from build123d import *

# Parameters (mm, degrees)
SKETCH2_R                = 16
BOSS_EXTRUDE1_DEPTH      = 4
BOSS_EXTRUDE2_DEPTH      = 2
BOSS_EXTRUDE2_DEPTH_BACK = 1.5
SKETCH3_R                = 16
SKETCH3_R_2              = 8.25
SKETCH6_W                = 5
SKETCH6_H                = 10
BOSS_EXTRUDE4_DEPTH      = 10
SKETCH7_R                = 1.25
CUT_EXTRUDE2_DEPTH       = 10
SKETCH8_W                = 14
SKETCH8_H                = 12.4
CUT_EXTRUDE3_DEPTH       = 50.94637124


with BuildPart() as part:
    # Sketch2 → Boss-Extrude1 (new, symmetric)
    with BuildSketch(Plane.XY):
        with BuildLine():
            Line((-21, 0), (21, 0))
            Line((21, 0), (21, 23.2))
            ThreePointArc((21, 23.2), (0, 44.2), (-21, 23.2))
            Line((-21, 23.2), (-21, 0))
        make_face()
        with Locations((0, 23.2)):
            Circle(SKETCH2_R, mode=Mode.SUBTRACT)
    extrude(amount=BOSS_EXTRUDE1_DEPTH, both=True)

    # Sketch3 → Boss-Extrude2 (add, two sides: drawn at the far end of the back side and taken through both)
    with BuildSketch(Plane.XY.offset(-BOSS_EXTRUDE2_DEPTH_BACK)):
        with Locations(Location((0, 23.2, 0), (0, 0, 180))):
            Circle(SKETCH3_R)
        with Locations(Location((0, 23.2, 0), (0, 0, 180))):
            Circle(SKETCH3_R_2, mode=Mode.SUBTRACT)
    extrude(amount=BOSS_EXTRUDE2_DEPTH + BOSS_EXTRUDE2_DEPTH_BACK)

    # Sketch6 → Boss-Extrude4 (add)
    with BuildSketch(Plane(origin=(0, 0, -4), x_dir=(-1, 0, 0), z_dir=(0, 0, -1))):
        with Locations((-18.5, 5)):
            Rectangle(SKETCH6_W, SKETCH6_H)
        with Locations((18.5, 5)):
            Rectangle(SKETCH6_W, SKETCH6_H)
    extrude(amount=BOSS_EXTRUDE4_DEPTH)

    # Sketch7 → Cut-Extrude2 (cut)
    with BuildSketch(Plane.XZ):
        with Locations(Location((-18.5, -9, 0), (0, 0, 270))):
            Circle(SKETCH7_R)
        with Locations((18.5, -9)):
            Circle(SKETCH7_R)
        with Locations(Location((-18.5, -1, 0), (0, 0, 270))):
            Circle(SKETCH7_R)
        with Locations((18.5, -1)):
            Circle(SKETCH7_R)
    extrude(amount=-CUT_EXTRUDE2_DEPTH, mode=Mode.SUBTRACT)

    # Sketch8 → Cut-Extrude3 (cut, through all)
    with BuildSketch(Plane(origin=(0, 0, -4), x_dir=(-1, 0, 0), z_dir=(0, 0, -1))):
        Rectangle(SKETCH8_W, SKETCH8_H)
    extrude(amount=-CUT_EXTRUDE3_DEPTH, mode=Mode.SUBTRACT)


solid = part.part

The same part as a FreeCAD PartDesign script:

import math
import FreeCAD as App
import Part
import Sketcher
Q = App.Units.Quantity


def add_polygon(sketch, points):
    """Adds a closed chain of lines whose ends are joined by coincident constraints."""
    first, n = sketch.GeometryCount, len(points)
    for a, b in zip(points, points[1:] + points[:1]):
        sketch.addGeometry(Part.LineSegment(App.Vector(*a, 0), App.Vector(*b, 0)), False)
    for i in range(n):
        sketch.addConstraint(Sketcher.Constraint("Coincident", first + i, 2, first + (i + 1) % n, 1))

doc = App.newDocument("Part")
body = doc.addObject("PartDesign::Body", "Body")

# Sketch on XY plane
sketch1 = body.newObject("Sketcher::SketchObject", "Sketch")
sketch1.AttachmentSupport = (doc.getObject("XY_Plane"), [""])
sketch1.MapMode = "FlatFace"
sketch1.addGeometry([
    Part.LineSegment(App.Vector(-21, 0, 0), App.Vector(21, 0, 0)),  # 0
    Part.LineSegment(App.Vector(21, 0, 0), App.Vector(21, 23, 0)),  # 1
    Part.ArcOfCircle(Part.Circle(App.Vector(0, 23, 0), App.Vector(0, 0, 1), 21), math.radians(0), math.radians(180)),  # 2
    Part.LineSegment(App.Vector(-21, 23, 0), App.Vector(-21, 0, 0)),  # 3
    Part.Circle(App.Vector(0, 23, 0), App.Vector(0, 0, 1), 16),  # 4
], False)
sketch1.addConstraint([
    Sketcher.Constraint("Coincident", 0, 2, 1, 1),
    Sketcher.Constraint("Tangent", 1, 2, 2, 1),
    Sketcher.Constraint("Tangent", 2, 2, 3, 1),
    Sketcher.Constraint("Coincident", 3, 2, 0, 1),
    Sketcher.Constraint("Horizontal", 0),
    Sketcher.Constraint("Vertical", 1),
    Sketcher.Constraint("Vertical", 3),
    Sketcher.Constraint("Coincident", 4, 3, 2, 3),
    Sketcher.Constraint("Symmetric", 0, 2, 3, 2, -1, 1),
    Sketcher.Constraint("Diameter", 4, Q("32 mm")),
    Sketcher.Constraint("Radius", 2, Q("21 mm")),
    Sketcher.Constraint("DistanceY", 1, 1, 1, 2, Q("23.2 mm")),
])
pad1 = body.newObject("PartDesign::Pad", "Pad")
pad1.Profile = sketch1
pad1.Length = 8
pad1.Midplane = True

# Sketch on XY plane
sketch2 = body.newObject("Sketcher::SketchObject", "Sketch001")
sketch2.AttachmentSupport = (doc.getObject("XY_Plane"), [""])
sketch2.MapMode = "FlatFace"
sketch2.addGeometry([
    Part.Circle(App.Vector(0, 23, 0), App.Vector(0, 0, 1), 16),
    Part.Circle(App.Vector(0, 23, 0), App.Vector(0, 0, 1), 8),
], False)
sketch2.addConstraint([
    Sketcher.Constraint("Coincident", 1, 3, 0, 3),
    Sketcher.Constraint("PointOnObject", 0, 3, -2),
    Sketcher.Constraint("Diameter", 0, Q("32 mm")),
    Sketcher.Constraint("Diameter", 1, Q("16.5 mm")),
    Sketcher.Constraint("DistanceY", -1, 1, 0, 3, Q("23.2 mm")),
])
pad2 = body.newObject("PartDesign::Pad", "Pad001")
pad2.Profile = sketch2
pad2.Type = "TwoLengths"
pad2.Length = 2
pad2.Length2 = 1.5

# Sketch on XY plane
sketch3 = body.newObject("Sketcher::SketchObject", "Sketch002")
sketch3.AttachmentSupport = (doc.getObject("XY_Plane"), [""])
sketch3.MapMode = "FlatFace"
sketch3.AttachmentOffset = App.Placement(App.Vector(0, 0, -4), App.Rotation())
add_polygon(sketch3, [(21, 10), (21, 0), (16, 0), (16, 10)])  # lines 0-3
add_polygon(sketch3, [(-16, 10), (-16, 0), (-21, 0), (-21, 10)])  # lines 4-7
sketch3.addConstraint([
    Sketcher.Constraint("Vertical", 0),
    Sketcher.Constraint("Horizontal", 1),
    Sketcher.Constraint("Vertical", 2),
    Sketcher.Constraint("Horizontal", 3),
    Sketcher.Constraint("Vertical", 4),
    Sketcher.Constraint("Horizontal", 5),
    Sketcher.Constraint("Vertical", 6),
    Sketcher.Constraint("Horizontal", 7),
    Sketcher.Constraint("Symmetric", 1, 2, 4, 2, -1, 1),
    Sketcher.Constraint("Symmetric", 0, 2, 5, 2, -2),
    Sketcher.Constraint("Horizontal", 3, 2, 6, 2),
    Sketcher.Constraint("DistanceX", 1, 2, 1, 1, Q("5 mm")),
    Sketcher.Constraint("DistanceY", 0, 2, 0, 1, Q("10 mm")),
    Sketcher.Constraint("DistanceX", -1, 1, 0, 2, Q("21 mm")),
])
pad3 = body.newObject("PartDesign::Pad", "Pad002")
pad3.Profile = sketch3
pad3.Length = 10
pad3.Reversed = True

# Sketch on XZ plane
sketch4 = body.newObject("Sketcher::SketchObject", "Sketch003")
sketch4.AttachmentSupport = (doc.getObject("XZ_Plane"), [""])
sketch4.MapMode = "FlatFace"
sketch4.addGeometry([
    Part.Circle(App.Vector(-18.5, -9, 0), App.Vector(0, 0, 1), 1.2),
    Part.Circle(App.Vector(18.5, -9, 0), App.Vector(0, 0, 1), 1.2),
    Part.Circle(App.Vector(-18.5, -1, 0), App.Vector(0, 0, 1), 1.2),
    Part.Circle(App.Vector(18.5, -1, 0), App.Vector(0, 0, 1), 1.2),
], False)
sketch4.addConstraint([
    Sketcher.Constraint("Equal", 0, 1),
    Sketcher.Constraint("Equal", 1, 2),
    Sketcher.Constraint("Equal", 2, 3),
    Sketcher.Constraint("Symmetric", 0, 3, 1, 3, -2),
    Sketcher.Constraint("Symmetric", 2, 3, 3, 3, -2),
    Sketcher.Constraint("Vertical", 0, 3, 2, 3),
    Sketcher.Constraint("Diameter", 0, Q("2.5 mm")),
    Sketcher.Constraint("DistanceY", 0, 3, -1, 1, Q("9 mm")),
    Sketcher.Constraint("DistanceY", 2, 3, -1, 1, Q("1 mm")),
    Sketcher.Constraint("DistanceX", 0, 3, 1, 3, Q("37 mm")),
])
pocket1 = body.newObject("PartDesign::Pocket", "Pocket")
pocket1.Profile = sketch4
pocket1.Length = 10

# Sketch on XY plane
sketch5 = body.newObject("Sketcher::SketchObject", "Sketch004")
sketch5.AttachmentSupport = (doc.getObject("XY_Plane"), [""])
sketch5.MapMode = "FlatFace"
sketch5.AttachmentOffset = App.Placement(App.Vector(0, 0, -4), App.Rotation())
add_polygon(sketch5, [(7, 6), (7, -6), (-7, -6), (-7, 6)])  # lines 0-3
sketch5.addConstraint([
    Sketcher.Constraint("Vertical", 0),
    Sketcher.Constraint("Horizontal", 1),
    Sketcher.Constraint("Vertical", 2),
    Sketcher.Constraint("Horizontal", 3),
    Sketcher.Constraint("Symmetric", 0, 2, 2, 2, -1, 1),
    Sketcher.Constraint("DistanceX", 1, 2, 1, 1, Q("14 mm")),
    Sketcher.Constraint("DistanceY", 0, 2, 0, 1, Q("12.4 mm")),
])
pocket2 = body.newObject("PartDesign::Pocket", "Pocket001")
pocket2.Profile = sketch5
pocket2.Type = "ThroughAll"
pocket2.Reversed = True

doc.recompute()
